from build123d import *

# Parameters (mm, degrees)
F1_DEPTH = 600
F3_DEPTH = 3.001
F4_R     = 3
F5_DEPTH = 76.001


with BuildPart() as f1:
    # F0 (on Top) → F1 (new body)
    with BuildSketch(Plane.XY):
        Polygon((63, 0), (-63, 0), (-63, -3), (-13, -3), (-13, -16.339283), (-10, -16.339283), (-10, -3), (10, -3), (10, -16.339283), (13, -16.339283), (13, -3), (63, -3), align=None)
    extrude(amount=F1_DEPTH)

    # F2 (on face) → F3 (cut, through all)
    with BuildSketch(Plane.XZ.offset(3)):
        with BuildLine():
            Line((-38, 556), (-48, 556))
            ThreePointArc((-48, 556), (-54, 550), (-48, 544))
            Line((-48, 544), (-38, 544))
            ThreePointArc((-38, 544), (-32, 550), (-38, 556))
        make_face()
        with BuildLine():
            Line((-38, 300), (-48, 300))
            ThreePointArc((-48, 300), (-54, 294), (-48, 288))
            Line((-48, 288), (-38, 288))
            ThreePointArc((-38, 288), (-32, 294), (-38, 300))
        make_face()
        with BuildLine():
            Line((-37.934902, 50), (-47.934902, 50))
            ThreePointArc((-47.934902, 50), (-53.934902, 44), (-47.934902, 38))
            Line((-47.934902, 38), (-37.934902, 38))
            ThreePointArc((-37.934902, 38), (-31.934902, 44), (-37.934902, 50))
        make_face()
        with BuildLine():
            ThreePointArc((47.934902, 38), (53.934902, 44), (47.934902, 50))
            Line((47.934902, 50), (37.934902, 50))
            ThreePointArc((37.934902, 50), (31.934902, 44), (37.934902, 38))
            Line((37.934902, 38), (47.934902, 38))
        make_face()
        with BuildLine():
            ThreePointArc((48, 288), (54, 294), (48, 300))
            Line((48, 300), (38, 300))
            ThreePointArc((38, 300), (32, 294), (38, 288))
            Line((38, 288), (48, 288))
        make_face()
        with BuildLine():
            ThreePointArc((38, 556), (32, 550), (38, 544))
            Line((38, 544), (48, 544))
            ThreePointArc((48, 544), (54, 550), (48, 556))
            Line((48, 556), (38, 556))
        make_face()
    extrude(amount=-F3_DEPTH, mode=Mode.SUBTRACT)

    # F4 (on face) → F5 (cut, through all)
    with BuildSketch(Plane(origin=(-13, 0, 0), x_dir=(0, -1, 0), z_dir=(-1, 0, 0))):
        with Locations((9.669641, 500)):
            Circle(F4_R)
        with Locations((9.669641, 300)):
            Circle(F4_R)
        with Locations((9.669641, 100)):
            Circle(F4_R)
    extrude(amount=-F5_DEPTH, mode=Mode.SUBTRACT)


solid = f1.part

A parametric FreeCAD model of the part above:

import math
import FreeCAD as App
import Part
import Sketcher

V = App.Vector


def add_polygon(sketch, points):
    """Adds a closed chain of lines whose ends are joined by coincident constraints."""
    first, n = sketch.GeometryCount, len(points)
    for a, b in zip(points, points[1:] + points[:1]):
        sketch.addGeometry(Part.LineSegment(App.Vector(*a, 0), App.Vector(*b, 0)), False)
    for i in range(n):
        sketch.addConstraint(Sketcher.Constraint("Coincident", first + i, 2, first + (i + 1) % n, 1))

doc = App.newDocument("Part")
params = doc.addObject("Spreadsheet::Sheet", "Params")
for row, (alias, value) in enumerate([
    ("sketch1_width", "126 mm"),
    ("sketch1_width2", "50 mm"),
    ("sketch1_width3", "3 mm"),
    ("pad1_length", "600 mm"),
    ("sketch2_radius", "6 mm"),
    ("sketch2_width", "10 mm"),
    ("sketch3_diameter", "6 mm"),
], start=1):
    params.set(f"A{row}", alias)
    params.set(f"B{row}", "=" + value)
    params.setAlias(f"B{row}", alias)

body = doc.addObject("PartDesign::Body", "Body")

sketch1 = doc.addObject("Sketcher::SketchObject", "Sketch")
body.addObject(sketch1)
sketch1.AttachmentSupport = (doc.XY_Plane, [""])
sketch1.MapMode = "FlatFace"
add_polygon(sketch1, [(63, 0), (-63, 0), (-63, -3), (-13, -3), (-13, -16.339283), (-10, -16.339283), (-10, -3), (10, -3), (10, -16.339283), (13, -16.339283), (13, -3), (63, -3)])
sketch1.addConstraint(Sketcher.Constraint("Horizontal", 0))
sketch1.addConstraint(Sketcher.Constraint("Vertical", 1))
sketch1.addConstraint(Sketcher.Constraint("Horizontal", 2))
sketch1.addConstraint(Sketcher.Constraint("Vertical", 3))
sketch1.addConstraint(Sketcher.Constraint("Horizontal", 4))
sketch1.addConstraint(Sketcher.Constraint("Vertical", 5))
sketch1.addConstraint(Sketcher.Constraint("Horizontal", 6))
sketch1.addConstraint(Sketcher.Constraint("Vertical", 7))
sketch1.addConstraint(Sketcher.Constraint("Horizontal", 8))
sketch1.addConstraint(Sketcher.Constraint("Vertical", 9))
sketch1.addConstraint(Sketcher.Constraint("Horizontal", 10))
sketch1.addConstraint(Sketcher.Constraint("Vertical", 11))
sketch1.addConstraint(Sketcher.Constraint("Symmetric", 0, 2, 11, 2, -1, 1))
sketch1.addConstraint(Sketcher.Constraint("Symmetric", 4, 2, 7, 2, -2))
sketch1.addConstraint(Sketcher.Constraint("Symmetric", 2, 2, 9, 2, -2))
sketch1.addConstraint(Sketcher.Constraint("Horizontal", 2, 2, 5, 2))
sketch1.addConstraint(Sketcher.Constraint("Equal", 8, 1))
sketch1.addConstraint(Sketcher.Constraint("DistanceX", 0, 2, 0, 1, 126.0))
sketch1.addConstraint(Sketcher.Constraint("DistanceX", 2, 1, 2, 2, 50.0))
sketch1.addConstraint(Sketcher.Constraint("DistanceX", 4, 1, 4, 2, 3.0))
sketch1.addConstraint(Sketcher.Constraint("DistanceY", 3, 2, 3, 1, 13.339283))
sketch1.setExpression("Constraints[29]", "Params.sketch1_width")
sketch1.setExpression("Constraints[30]", "Params.sketch1_width2")
sketch1.setExpression("Constraints[31]", "Params.sketch1_width3")
pad1 = doc.addObject("PartDesign::Pad", "Pad")
body.addObject(pad1)
pad1.Profile = sketch1
pad1.setExpression("Length", "Params.pad1_length")

sketch2 = doc.addObject("Sketcher::SketchObject", "Sketch001")
body.addObject(sketch2)
sketch2.AttachmentSupport = (doc.XZ_Plane, [""])
sketch2.MapMode = "FlatFace"
sketch2.AttachmentOffset = App.Placement(V(0, 0, 3), App.Rotation())
sketch2.addGeometry(Part.LineSegment(V(-38, 556, 0), V(-48, 556, 0)), False)
sketch2.addGeometry(Part.ArcOfCircle(Part.Circle(V(-48, 550, 0), V(0, 0, 1), 6), math.radians(90), math.radians(270)), False)
sketch2.addGeometry(Part.LineSegment(V(-48, 544, 0), V(-38, 544, 0)), False)
sketch2.addGeometry(Part.ArcOfCircle(Part.Circle(V(-38, 550, 0), V(0, 0, 1), 6), math.radians(-90), math.radians(90)), False)
sketch2.addGeometry(Part.LineSegment(V(-38, 300, 0), V(-48, 300, 0)), False)
sketch2.addGeometry(Part.ArcOfCircle(Part.Circle(V(-48, 294, 0), V(0, 0, 1), 6), math.radians(90), math.radians(270)), False)
sketch2.addGeometry(Part.LineSegment(V(-48, 288, 0), V(-38, 288, 0)), False)
sketch2.addGeometry(Part.ArcOfCircle(Part.Circle(V(-38, 294, 0), V(0, 0, 1), 6), math.radians(-90), math.radians(90)), False)
sketch2.addGeometry(Part.LineSegment(V(-37.934902, 50, 0), V(-47.934902, 50, 0)), False)
sketch2.addGeometry(Part.ArcOfCircle(Part.Circle(V(-47.934902, 44, 0), V(0, 0, 1), 6), math.radians(90), math.radians(270)), False)
sketch2.addGeometry(Part.LineSegment(V(-47.934902, 38, 0), V(-37.934902, 38, 0)), False)
sketch2.addGeometry(Part.ArcOfCircle(Part.Circle(V(-37.934902, 44, 0), V(0, 0, 1), 6), math.radians(-90), math.radians(90)), False)
sketch2.addGeometry(Part.ArcOfCircle(Part.Circle(V(47.934902, 44, 0), V(0, 0, 1), 6), math.radians(-90), math.radians(90)), False)
sketch2.addGeometry(Part.LineSegment(V(47.934902, 50, 0), V(37.934902, 50, 0)), False)
sketch2.addGeometry(Part.ArcOfCircle(Part.Circle(V(37.934902, 44, 0), V(0, 0, 1), 6), math.radians(90), math.radians(270)), False)
sketch2.addGeometry(Part.LineSegment(V(37.934902, 38, 0), V(47.934902, 38, 0)), False)
sketch2.addGeometry(Part.ArcOfCircle(Part.Circle(V(48, 294, 0), V(0, 0, 1), 6), math.radians(-90), math.radians(90)), False)
sketch2.addGeometry(Part.LineSegment(V(48, 300, 0), V(38, 300, 0)), False)
sketch2.addGeometry(Part.ArcOfCircle(Part.Circle(V(38, 294, 0), V(0, 0, 1), 6), math.radians(90), math.radians(270)), False)
sketch2.addGeometry(Part.LineSegment(V(38, 288, 0), V(48, 288, 0)), False)
sketch2.addGeometry(Part.ArcOfCircle(Part.Circle(V(38, 550, 0), V(0, 0, 1), 6), math.radians(90), math.radians(270)), False)
sketch2.addGeometry(Part.LineSegment(V(38, 544, 0), V(48, 544, 0)), False)
sketch2.addGeometry(Part.ArcOfCircle(Part.Circle(V(48, 550, 0), V(0, 0, 1), 6), math.radians(-90), math.radians(90)), False)
sketch2.addGeometry(Part.LineSegment(V(48, 556, 0), V(38, 556, 0)), False)
sketch2.addConstraint(Sketcher.Constraint("Tangent", 0, 2, 1, 1))
sketch2.addConstraint(Sketcher.Constraint("Tangent", 1, 2, 2, 1))
sketch2.addConstraint(Sketcher.Constraint("Tangent", 2, 2, 3, 1))
sketch2.addConstraint(Sketcher.Constraint("Tangent", 3, 2, 0, 1))
sketch2.addConstraint(Sketcher.Constraint("Tangent", 4, 2, 5, 1))
sketch2.addConstraint(Sketcher.Constraint("Tangent", 5, 2, 6, 1))
sketch2.addConstraint(Sketcher.Constraint("Tangent", 6, 2, 7, 1))
sketch2.addConstraint(Sketcher.Constraint("Tangent", 7, 2, 4, 1))
sketch2.addConstraint(Sketcher.Constraint("Tangent", 8, 2, 9, 1))
sketch2.addConstraint(Sketcher.Constraint("Tangent", 9, 2, 10, 1))
sketch2.addConstraint(Sketcher.Constraint("Tangent", 10, 2, 11, 1))
sketch2.addConstraint(Sketcher.Constraint("Tangent", 11, 2, 8, 1))
sketch2.addConstraint(Sketcher.Constraint("Tangent", 12, 2, 13, 1))
sketch2.addConstraint(Sketcher.Constraint("Tangent", 13, 2, 14, 1))
sketch2.addConstraint(Sketcher.Constraint("Tangent", 14, 2, 15, 1))
sketch2.addConstraint(Sketcher.Constraint("Tangent", 15, 2, 12, 1))
sketch2.addConstraint(Sketcher.Constraint("Tangent", 16, 2, 17, 1))
sketch2.addConstraint(Sketcher.Constraint("Tangent", 17, 2, 18, 1))
sketch2.addConstraint(Sketcher.Constraint("Tangent", 18, 2, 19, 1))
sketch2.addConstraint(Sketcher.Constraint("Tangent", 19, 2, 16, 1))
sketch2.addConstraint(Sketcher.Constraint("Tangent", 20, 2, 21, 1))
sketch2.addConstraint(Sketcher.Constraint("Tangent", 21, 2, 22, 1))
sketch2.addConstraint(Sketcher.Constraint("Tangent", 22, 2, 23, 1))
sketch2.addConstraint(Sketcher.Constraint("Tangent", 23, 2, 20, 1))
sketch2.addConstraint(Sketcher.Constraint("Horizontal", 0))
sketch2.addConstraint(Sketcher.Constraint("Horizontal", 2))
sketch2.addConstraint(Sketcher.Constraint("Horizontal", 4))
sketch2.addConstraint(Sketcher.Constraint("Horizontal", 6))
sketch2.addConstraint(Sketcher.Constraint("Horizontal", 8))
sketch2.addConstraint(Sketcher.Constraint("Horizontal", 10))
sketch2.addConstraint(Sketcher.Constraint("Horizontal", 13))
sketch2.addConstraint(Sketcher.Constraint("Horizontal", 15))
sketch2.addConstraint(Sketcher.Constraint("Horizontal", 17))
sketch2.addConstraint(Sketcher.Constraint("Horizontal", 19))
sketch2.addConstraint(Sketcher.Constraint("Horizontal", 21))
sketch2.addConstraint(Sketcher.Constraint("Horizontal", 23))
sketch2.addConstraint(Sketcher.Constraint("Equal", 3, 5))
sketch2.addConstraint(Sketcher.Constraint("Equal", 7, 9))
sketch2.addConstraint(Sketcher.Constraint("Equal", 11, 12))
sketch2.addConstraint(Sketcher.Constraint("Equal", 14, 16))
sketch2.addConstraint(Sketcher.Constraint("Equal", 18, 20))
sketch2.addConstraint(Sketcher.Constraint("Symmetric", 9, 3, 12, 3, -2))
sketch2.addConstraint(Sketcher.Constraint("Symmetric", 5, 3, 16, 3, -2))
sketch2.addConstraint(Sketcher.Constraint("Symmetric", 3, 3, 20, 3, -2))
sketch2.addConstraint(Sketcher.Constraint("Vertical", 1, 3, 5, 3))
sketch2.addConstraint(Sketcher.Constraint("Vertical", 3, 3, 7, 3))
sketch2.addConstraint(Sketcher.Constraint("Vertical", 18, 3, 20, 3))
sketch2.addConstraint(Sketcher.Constraint("Vertical", 16, 3, 22, 3))
sketch2.addConstraint(Sketcher.Constraint("Equal", 6, 8))
sketch2.addConstraint(Sketcher.Constraint("Equal", 10, 13))
sketch2.addConstraint(Sketcher.Constraint("Radius", 1, 6.0))
sketch2.addConstraint(Sketcher.Constraint("DistanceX", 0, 2, 0, 1, 10.0))
sketch2.addConstraint(Sketcher.Constraint("DistanceX", 1, 3, -1, 1, 48.0))
sketch2.addConstraint(Sketcher.Constraint("DistanceY", -1, 1, 1, 3, 550.0))
sketch2.addConstraint(Sketcher.Constraint("DistanceY", -1, 1, 5, 3, 294.0))
sketch2.addConstraint(Sketcher.Constraint("DistanceY", -1, 1, 9, 3, 44.0))
sketch2.addConstraint(Sketcher.Constraint("DistanceX", 7, 3, 12, 3, 85.934902))
sketch2.setExpression("Constraints[50]", "Params.sketch2_radius")
sketch2.setExpression("Constraints[51]", "Params.sketch2_width")
pocket1 = doc.addObject("PartDesign::Pocket", "Pocket")
body.addObject(pocket1)
pocket1.Profile = sketch2
pocket1.Type = "ThroughAll"

sketch3 = doc.addObject("Sketcher::SketchObject", "Sketch002")
body.addObject(sketch3)
sketch3.AttachmentSupport = (doc.YZ_Plane, [""])
sketch3.MapMode = "FlatFace"
sketch3.AttachmentOffset = App.Placement(V(0, 0, -13), App.Rotation())
sketch3.addGeometry(Part.Circle(V(-9.669641, 500, 0), V(0, 0, 1), 3), False)
sketch3.addGeometry(Part.Circle(V(-9.669641, 300, 0), V(0, 0, 1), 3), False)
sketch3.addGeometry(Part.Circle(V(-9.669641, 100, 0), V(0, 0, 1), 3), False)
sketch3.addConstraint(Sketcher.Constraint("Equal", 0, 1))
sketch3.addConstraint(Sketcher.Constraint("Equal", 1, 2))
sketch3.addConstraint(Sketcher.Constraint("Vertical", 0, 3, 1, 3))
sketch3.addConstraint(Sketcher.Constraint("Vertical", 1, 3, 2, 3))
sketch3.addConstraint(Sketcher.Constraint("Diameter", 0, 6.0))
sketch3.addConstraint(Sketcher.Constraint("DistanceY", -1, 1, 0, 3, 500.0))
sketch3.addConstraint(Sketcher.Constraint("DistanceY", -1, 1, 1, 3, 300.0))
sketch3.addConstraint(Sketcher.Constraint("DistanceY", -1, 1, 2, 3, 100.0))
sketch3.addConstraint(Sketcher.Constraint("DistanceX", 0, 3, -1, 1, 9.669641))
sketch3.setExpression("Constraints[4]", "Params.sketch3_diameter")
pocket2 = doc.addObject("PartDesign::Pocket", "Pocket001")
body.addObject(pocket2)
pocket2.Profile = sketch3
pocket2.Type = "ThroughAll"
pocket2.Reversed = True

doc.recompute()
